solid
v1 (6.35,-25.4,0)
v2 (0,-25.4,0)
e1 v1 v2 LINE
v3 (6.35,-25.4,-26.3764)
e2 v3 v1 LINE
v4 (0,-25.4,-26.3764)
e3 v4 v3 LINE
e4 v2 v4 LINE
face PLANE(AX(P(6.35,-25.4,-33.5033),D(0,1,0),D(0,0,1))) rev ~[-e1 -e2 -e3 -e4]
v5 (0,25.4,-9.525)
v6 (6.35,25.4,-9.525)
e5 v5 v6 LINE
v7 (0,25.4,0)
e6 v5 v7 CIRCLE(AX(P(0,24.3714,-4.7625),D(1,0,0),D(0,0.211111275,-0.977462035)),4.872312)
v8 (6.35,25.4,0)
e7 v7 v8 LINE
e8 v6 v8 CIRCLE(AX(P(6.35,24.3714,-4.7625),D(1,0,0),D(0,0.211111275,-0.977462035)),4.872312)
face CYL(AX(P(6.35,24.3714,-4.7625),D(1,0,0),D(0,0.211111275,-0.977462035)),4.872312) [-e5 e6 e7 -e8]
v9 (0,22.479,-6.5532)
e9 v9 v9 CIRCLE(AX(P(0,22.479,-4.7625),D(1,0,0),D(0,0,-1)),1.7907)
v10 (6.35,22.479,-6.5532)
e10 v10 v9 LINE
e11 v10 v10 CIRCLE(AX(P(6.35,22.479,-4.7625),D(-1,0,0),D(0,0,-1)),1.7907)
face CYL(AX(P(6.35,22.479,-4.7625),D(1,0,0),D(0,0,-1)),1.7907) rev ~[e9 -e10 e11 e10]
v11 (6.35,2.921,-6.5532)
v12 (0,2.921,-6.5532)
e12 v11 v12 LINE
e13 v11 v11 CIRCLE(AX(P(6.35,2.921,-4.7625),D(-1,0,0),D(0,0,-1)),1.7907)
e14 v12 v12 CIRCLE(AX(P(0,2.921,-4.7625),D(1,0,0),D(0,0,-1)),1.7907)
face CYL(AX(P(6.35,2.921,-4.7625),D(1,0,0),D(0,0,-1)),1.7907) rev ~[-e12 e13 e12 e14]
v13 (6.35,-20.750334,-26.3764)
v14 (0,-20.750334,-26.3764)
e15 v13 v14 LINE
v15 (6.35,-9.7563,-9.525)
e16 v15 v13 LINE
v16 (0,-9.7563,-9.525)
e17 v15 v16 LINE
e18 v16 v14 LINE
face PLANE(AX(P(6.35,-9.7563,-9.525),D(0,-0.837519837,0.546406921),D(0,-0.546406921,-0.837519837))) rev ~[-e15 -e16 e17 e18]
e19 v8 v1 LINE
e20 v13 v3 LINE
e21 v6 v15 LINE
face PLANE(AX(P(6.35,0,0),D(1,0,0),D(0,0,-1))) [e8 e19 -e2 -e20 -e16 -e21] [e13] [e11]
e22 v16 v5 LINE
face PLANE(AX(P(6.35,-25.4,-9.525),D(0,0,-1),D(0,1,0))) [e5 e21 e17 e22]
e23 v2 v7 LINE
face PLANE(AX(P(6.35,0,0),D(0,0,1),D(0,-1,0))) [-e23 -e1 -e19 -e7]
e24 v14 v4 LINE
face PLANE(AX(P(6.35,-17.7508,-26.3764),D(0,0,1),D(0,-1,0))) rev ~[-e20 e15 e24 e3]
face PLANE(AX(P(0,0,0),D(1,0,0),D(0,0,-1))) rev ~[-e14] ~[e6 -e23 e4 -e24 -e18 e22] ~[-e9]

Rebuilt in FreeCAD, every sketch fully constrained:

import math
import FreeCAD as App
import Part
import Sketcher
from FreeCAD import Vector
Q = App.Units.Quantity

doc = App.newDocument("Part")
body = doc.addObject("PartDesign::Body", "Body")

sketch1 = body.newObject("Sketcher::SketchObject", "Sketch")
sketch1.AttachmentSupport = (doc.getObject("YZ_Plane"), [""])
sketch1.MapMode = "FlatFace"
sketch1.addGeometry([
    Part.LineSegment(Vector(25.4, 0, 0), Vector(0, 0, 0)),
    Part.LineSegment(Vector(0, 0, 0), Vector(0, -9.525, 0)),
    Part.LineSegment(Vector(0, -9.525, 0), Vector(25.4, -9.525, 0)),
    Part.LineSegment(Vector(25.4, -9.525, 0), Vector(25.4, 0, 0)),
], False)
sketch1.addConstraint([
    Sketcher.Constraint("Coincident", 0, 2, 1, 1),
    Sketcher.Constraint("Coincident", 1, 2, 2, 1),
    Sketcher.Constraint("Coincident", 2, 2, 3, 1),
    Sketcher.Constraint("Coincident", 3, 2, 0, 1),
    Sketcher.Constraint("Horizontal", 0),
    Sketcher.Constraint("Vertical", 1),
    Sketcher.Constraint("Horizontal", 2),
    Sketcher.Constraint("Vertical", 3),
    Sketcher.Constraint("Coincident", 0, 2, -1, 1),
    Sketcher.Constraint("DistanceX", 0, 2, 0, 1, Q("1 in")),
    Sketcher.Constraint("DistanceY", 1, 2, 1, 1, Q("0.375 in")),
])
pad1 = body.newObject("PartDesign::Pad", "Pad")
pad1.Profile = sketch1
pad1.Length = Q("0.25 in")

sketch2 = body.newObject("Sketcher::SketchObject", "Sketch001")
sketch2.AttachmentSupport = (doc.getObject("YZ_Plane"), [""])
sketch2.MapMode = "FlatFace"
sketch2.AttachmentOffset = App.Placement(Vector(0, 0, 0.25 * 25.4), App.Rotation())
sketch2.addGeometry([
    Part.Circle(Vector(22.479, -4.7625, 0), Vector(0, 0, 1), 1.7907),
    Part.Circle(Vector(2.921, -4.7625, 0), Vector(0, 0, 1), 1.7907),
], False)
sketch2.addConstraint([
    Sketcher.Constraint("Equal", 0, 1),
    Sketcher.Constraint("Horizontal", 0, 3, 1, 3),
    Sketcher.Constraint("Diameter", 0, Q("0.141 in")),
    Sketcher.Constraint("DistanceX", 1, 3, 0, 3, Q("0.77 in")),
    Sketcher.Constraint("DistanceX", -1, 1, 0, 3, Q("0.885 in")),
    Sketcher.Constraint("DistanceY", 0, 3, -1, 1, Q("0.1875 in")),
])
pocket1 = body.newObject("PartDesign::Pocket", "Pocket")
pocket1.Profile = sketch2
pocket1.Length = Q("0.5625 in")

sketch3 = body.newObject("Sketcher::SketchObject", "Sketch002")
sketch3.AttachmentSupport = (doc.getObject("YZ_Plane"), [""])
sketch3.MapMode = "FlatFace"
sketch3.AttachmentOffset = App.Placement(Vector(0, 0, 0.25 * 25.4), App.Rotation())
sketch3.addGeometry([
    Part.LineSegment(Vector(25.4, 0, 0), Vector(25.4, -9.525, 0)),
    Part.ArcOfCircle(Part.Circle(Vector(24.3714, -4.7625, 0), Vector(0, 0, 1), 4.872312), math.radians(-77.812516), math.radians(77.812516)),
], False)
sketch3.addConstraint([
    Sketcher.Constraint("Coincident", 0, 1, 1, 2),
    Sketcher.Constraint("Coincident", 1, 1, 0, 2),
    Sketcher.Constraint("Vertical", 0),
    Sketcher.Constraint("PointOnObject", 0, 1, -1),
    Sketcher.Constraint("DistanceX", -1, 1, 0, 1, Q("1 in")),
    Sketcher.Constraint("DistanceY", 0, 2, 0, 1, Q("0.375 in")),
    Sketcher.Constraint("Radius", 1, 4.8723),
])
pad2 = body.newObject("PartDesign::Pad", "Pad001")
pad2.Profile = sketch3
pad2.Length = Q("0.25 in")
pad2.Reversed = True

sketch4 = body.newObject("Sketcher::SketchObject", "Sketch003")
sketch4.AttachmentSupport = (doc.getObject("YZ_Plane"), [""])
sketch4.MapMode = "FlatFace"
sketch4.AttachmentOffset = App.Placement(Vector(0, 0, 0.25 * 25.4), App.Rotation())
sketch4.addGeometry([
    Part.LineSegment(Vector(0, -9.525, 0), Vector(0, 0, 0)),
    Part.LineSegment(Vector(0, 0, 0), Vector(-25.4, 0, 0)),
    Part.LineSegment(Vector(-25.4, 0, 0), Vector(-25.4, -9.525, 0)),
    Part.LineSegment(Vector(-25.4, -9.525, 0), Vector(0, -9.525, 0)),
], False)
sketch4.addConstraint([
    Sketcher.Constraint("Coincident", 0, 2, 1, 1),
    Sketcher.Constraint("Coincident", 1, 2, 2, 1),
    Sketcher.Constraint("Coincident", 2, 2, 3, 1),
    Sketcher.Constraint("Coincident", 3, 2, 0, 1),
    Sketcher.Constraint("Vertical", 0),
    Sketcher.Constraint("Horizontal", 1),
    Sketcher.Constraint("Vertical", 2),
    Sketcher.Constraint("Horizontal", 3),
    Sketcher.Constraint("Coincident", 0, 2, -1, 1),
    Sketcher.Constraint("DistanceX", 1, 2, 1, 1, Q("1 in")),
    Sketcher.Constraint("DistanceY", 0, 1, 0, 2, Q("0.375 in")),
])
pad3 = body.newObject("PartDesign::Pad", "Pad002")
pad3.Profile = sketch4
pad3.Length = Q("0.25 in")
pad3.Reversed = True

sketch5 = body.newObject("Sketcher::SketchObject", "Sketch004")
sketch5.AttachmentSupport = (doc.getObject("YZ_Plane"), [""])
sketch5.MapMode = "FlatFace"
sketch5.AttachmentOffset = App.Placement(Vector(0, 0, 0.25 * 25.4), App.Rotation())
sketch5.addGeometry([
    Part.LineSegment(Vector(-9.7563, -9.525, 0), Vector(-25.4, -9.525, 0)),
    Part.LineSegment(Vector(-25.4, -9.525, 0), Vector(-25.4, -33.5033, 0)),
    Part.LineSegment(Vector(-25.4, -33.5033, 0), Vector(-9.7563, -9.525, 0)),
], False)
sketch5.addConstraint([
    Sketcher.Constraint("Coincident", 0, 2, 1, 1),
    Sketcher.Constraint("Coincident", 1, 2, 2, 1),
    Sketcher.Constraint("Coincident", 2, 2, 0, 1),
    Sketcher.Constraint("Horizontal", 0),
    Sketcher.Constraint("Vertical", 1),
    Sketcher.Constraint("DistanceX", 0, 2, -1, 1, Q("1 in")),
    Sketcher.Constraint("Angle", 2, Q("56.8791 deg")),
    Sketcher.Constraint("DistanceX", 0, 2, 0, 1, Q("0.6159 in")),
    Sketcher.Constraint("DistanceY", 0, 2, -1, 1, Q("0.375 in")),
])
pad4 = body.newObject("PartDesign::Pad", "Pad003")
pad4.Profile = sketch5
pad4.Length = Q("0.25 in")
pad4.Reversed = True

sketch6 = body.newObject("Sketcher::SketchObject", "Sketch005")
sketch6.AttachmentSupport = (doc.getObject("YZ_Plane"), [""])
sketch6.MapMode = "FlatFace"
sketch6.AttachmentOffset = App.Placement(Vector(0, 0, 0.25 * 25.4), App.Rotation())
sketch6.addGeometry([
    Part.LineSegment(Vector(-17.7508, -26.3764, 0), Vector(-37.8164, -26.3764, 0)),
    Part.LineSegment(Vector(-37.8164, -26.3764, 0), Vector(-37.8164, -39.194, 0)),
    Part.LineSegment(Vector(-37.8164, -39.194, 0), Vector(-17.7508, -39.194, 0)),
    Part.LineSegment(Vector(-17.7508, -39.194, 0), Vector(-17.7508, -26.3764, 0)),
], False)
sketch6.addConstraint([
    Sketcher.Constraint("Coincident", 0, 2, 1, 1),
    Sketcher.Constraint("Coincident", 1, 2, 2, 1),
    Sketcher.Constraint("Coincident", 2, 2, 3, 1),
    Sketcher.Constraint("Coincident", 3, 2, 0, 1),
    Sketcher.Constraint("Horizontal", 0),
    Sketcher.Constraint("Vertical", 1),
    Sketcher.Constraint("Horizontal", 2),
    Sketcher.Constraint("Vertical", 3),
    Sketcher.Constraint("DistanceX", 0, 2, 0, 1, 20.0656),
    Sketcher.Constraint("DistanceY", 1, 2, 1, 1, 12.8176),
    Sketcher.Constraint("DistanceX", 0, 2, -1, 1, 37.8164),
    Sketcher.Constraint("DistanceY", 0, 2, -1, 1, 26.3764),
])
pocket2 = body.newObject("PartDesign::Pocket", "Pocket001")
pocket2.Profile = sketch6
pocket2.Length = Q("2.5 in")

doc.recompute()
